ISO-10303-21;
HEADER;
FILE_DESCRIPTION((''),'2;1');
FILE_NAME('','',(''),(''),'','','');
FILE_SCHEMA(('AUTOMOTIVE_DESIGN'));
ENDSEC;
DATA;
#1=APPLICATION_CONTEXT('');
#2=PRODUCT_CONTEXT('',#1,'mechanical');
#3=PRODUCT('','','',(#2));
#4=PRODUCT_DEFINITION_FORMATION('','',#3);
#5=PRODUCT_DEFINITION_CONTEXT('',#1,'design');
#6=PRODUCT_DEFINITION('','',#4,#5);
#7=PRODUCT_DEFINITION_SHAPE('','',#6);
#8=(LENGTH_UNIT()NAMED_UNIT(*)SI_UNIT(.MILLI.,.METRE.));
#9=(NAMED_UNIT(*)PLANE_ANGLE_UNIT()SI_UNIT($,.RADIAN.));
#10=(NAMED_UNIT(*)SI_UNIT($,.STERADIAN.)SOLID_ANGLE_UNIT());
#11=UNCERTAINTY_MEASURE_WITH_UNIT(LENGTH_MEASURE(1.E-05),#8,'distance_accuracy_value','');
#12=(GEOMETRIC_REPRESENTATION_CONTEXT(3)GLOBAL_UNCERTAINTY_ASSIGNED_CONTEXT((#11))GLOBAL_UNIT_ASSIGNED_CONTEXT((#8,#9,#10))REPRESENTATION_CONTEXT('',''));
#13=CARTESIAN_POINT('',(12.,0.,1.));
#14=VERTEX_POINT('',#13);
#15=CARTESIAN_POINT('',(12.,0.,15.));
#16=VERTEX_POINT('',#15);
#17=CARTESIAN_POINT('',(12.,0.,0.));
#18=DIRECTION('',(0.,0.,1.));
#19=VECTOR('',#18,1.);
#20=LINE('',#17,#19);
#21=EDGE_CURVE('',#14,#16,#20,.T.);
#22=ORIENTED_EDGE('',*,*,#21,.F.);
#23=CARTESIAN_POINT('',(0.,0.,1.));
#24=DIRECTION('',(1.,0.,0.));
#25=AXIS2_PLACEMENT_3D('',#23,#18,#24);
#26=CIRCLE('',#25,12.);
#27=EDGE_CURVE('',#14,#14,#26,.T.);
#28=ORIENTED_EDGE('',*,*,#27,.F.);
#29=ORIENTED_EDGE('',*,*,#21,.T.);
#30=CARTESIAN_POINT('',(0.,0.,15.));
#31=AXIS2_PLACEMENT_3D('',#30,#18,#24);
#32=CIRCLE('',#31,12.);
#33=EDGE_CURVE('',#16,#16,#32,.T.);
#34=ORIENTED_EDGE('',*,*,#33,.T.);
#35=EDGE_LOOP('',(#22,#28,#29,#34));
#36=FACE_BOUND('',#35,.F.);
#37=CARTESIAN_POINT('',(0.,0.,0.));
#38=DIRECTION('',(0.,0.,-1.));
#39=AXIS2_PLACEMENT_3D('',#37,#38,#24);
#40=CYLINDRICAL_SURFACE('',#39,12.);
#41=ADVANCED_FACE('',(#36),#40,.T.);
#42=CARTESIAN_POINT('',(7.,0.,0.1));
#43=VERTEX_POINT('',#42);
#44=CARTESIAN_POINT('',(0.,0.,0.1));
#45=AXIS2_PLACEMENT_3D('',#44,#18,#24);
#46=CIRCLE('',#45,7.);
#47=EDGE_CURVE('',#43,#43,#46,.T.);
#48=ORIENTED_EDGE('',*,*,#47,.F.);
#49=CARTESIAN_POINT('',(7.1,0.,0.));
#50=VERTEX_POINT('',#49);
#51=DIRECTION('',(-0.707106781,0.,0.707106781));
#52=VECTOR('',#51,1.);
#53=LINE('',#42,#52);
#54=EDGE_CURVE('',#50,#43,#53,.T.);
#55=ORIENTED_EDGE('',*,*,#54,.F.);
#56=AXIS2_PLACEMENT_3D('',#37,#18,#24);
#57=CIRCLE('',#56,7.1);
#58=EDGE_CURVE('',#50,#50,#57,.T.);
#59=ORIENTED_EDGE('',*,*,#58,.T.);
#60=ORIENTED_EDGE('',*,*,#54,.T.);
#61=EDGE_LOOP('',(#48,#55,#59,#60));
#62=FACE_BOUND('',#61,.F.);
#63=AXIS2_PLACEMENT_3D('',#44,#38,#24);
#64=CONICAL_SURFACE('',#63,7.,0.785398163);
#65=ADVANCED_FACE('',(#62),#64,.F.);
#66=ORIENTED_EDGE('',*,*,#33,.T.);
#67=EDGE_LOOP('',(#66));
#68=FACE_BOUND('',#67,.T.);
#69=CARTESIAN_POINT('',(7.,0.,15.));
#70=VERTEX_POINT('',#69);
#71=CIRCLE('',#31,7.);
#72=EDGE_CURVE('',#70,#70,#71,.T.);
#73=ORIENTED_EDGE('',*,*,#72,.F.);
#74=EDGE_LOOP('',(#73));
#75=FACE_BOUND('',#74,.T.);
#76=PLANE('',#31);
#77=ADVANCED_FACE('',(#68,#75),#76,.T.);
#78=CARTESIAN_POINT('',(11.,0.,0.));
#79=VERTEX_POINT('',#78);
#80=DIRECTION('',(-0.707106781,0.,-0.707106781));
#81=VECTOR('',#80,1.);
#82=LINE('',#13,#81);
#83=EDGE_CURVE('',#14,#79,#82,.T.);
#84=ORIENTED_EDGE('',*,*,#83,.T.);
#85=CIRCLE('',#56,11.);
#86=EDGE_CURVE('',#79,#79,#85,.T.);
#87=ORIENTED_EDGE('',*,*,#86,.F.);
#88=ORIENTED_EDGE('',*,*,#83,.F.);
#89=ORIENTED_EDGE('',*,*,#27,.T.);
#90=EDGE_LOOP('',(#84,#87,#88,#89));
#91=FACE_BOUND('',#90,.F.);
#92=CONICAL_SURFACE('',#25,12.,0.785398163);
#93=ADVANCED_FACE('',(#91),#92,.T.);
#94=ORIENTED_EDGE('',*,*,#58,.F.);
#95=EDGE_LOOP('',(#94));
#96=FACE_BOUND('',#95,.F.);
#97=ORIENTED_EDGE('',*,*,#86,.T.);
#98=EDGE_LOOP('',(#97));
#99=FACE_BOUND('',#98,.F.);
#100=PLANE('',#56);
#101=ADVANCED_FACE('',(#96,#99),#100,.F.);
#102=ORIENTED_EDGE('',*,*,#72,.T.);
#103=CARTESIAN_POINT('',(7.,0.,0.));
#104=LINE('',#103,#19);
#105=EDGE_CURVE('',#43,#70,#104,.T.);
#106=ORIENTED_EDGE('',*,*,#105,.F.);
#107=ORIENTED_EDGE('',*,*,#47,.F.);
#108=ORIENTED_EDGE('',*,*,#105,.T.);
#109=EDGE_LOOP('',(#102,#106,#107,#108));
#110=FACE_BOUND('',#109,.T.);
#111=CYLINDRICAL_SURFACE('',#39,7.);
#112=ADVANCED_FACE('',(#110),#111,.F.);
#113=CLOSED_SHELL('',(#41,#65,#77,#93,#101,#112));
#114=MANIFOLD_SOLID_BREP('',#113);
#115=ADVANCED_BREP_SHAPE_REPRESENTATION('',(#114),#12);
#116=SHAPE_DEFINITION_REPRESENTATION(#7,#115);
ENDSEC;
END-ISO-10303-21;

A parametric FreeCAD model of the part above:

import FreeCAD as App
import Part
import Sketcher
from FreeCAD import Vector


def edges_at(feature, points):
    """Names of the edges that pass closest to the given points."""
    edges = feature.Shape.Edges
    near = lambda p: min(range(len(edges)), key=lambda i: edges[i].distToShape(Part.Vertex(*p))[0])
    return sorted({f"Edge{near(p) + 1}" for p in points})

doc = App.newDocument("Part")
body = doc.addObject("PartDesign::Body", "Body")

sketch1 = body.newObject("Sketcher::SketchObject", "Sketch")
sketch1.AttachmentSupport = (doc.getObject("XY_Plane"), [""])
sketch1.MapMode = "FlatFace"
sketch1.addGeometry(Part.Circle(Vector(0, 0, 0), Vector(0, 0, 1), 12), False)
sketch1.addGeometry(Part.Circle(Vector(0, 0, 0), Vector(0, 0, 1), 7), False)
sketch1.addConstraint(Sketcher.Constraint("Coincident", 0, 3, -1, 1))
sketch1.addConstraint(Sketcher.Constraint("Coincident", 1, 3, -1, 1))
sketch1.addConstraint(Sketcher.Constraint("Diameter", 0, 24.0))
sketch1.addConstraint(Sketcher.Constraint("Diameter", 1, 14.0))
pad1 = body.newObject("PartDesign::Pad", "Pad")
pad1.Profile = sketch1
pad1.Length = 15
doc.recompute()

chamfer = body.newObject("PartDesign::Chamfer", "Chamfer")
chamfer.Base = (pad1, edges_at(pad1, [(-12, 0, 0)]))
chamfer.Size = 1
doc.recompute()

chamfer2 = body.newObject("PartDesign::Chamfer", "Chamfer001")
chamfer2.Base = (chamfer, edges_at(chamfer, [(-7, 0, 0)]))
chamfer2.Size = 0.1

doc.recompute()
